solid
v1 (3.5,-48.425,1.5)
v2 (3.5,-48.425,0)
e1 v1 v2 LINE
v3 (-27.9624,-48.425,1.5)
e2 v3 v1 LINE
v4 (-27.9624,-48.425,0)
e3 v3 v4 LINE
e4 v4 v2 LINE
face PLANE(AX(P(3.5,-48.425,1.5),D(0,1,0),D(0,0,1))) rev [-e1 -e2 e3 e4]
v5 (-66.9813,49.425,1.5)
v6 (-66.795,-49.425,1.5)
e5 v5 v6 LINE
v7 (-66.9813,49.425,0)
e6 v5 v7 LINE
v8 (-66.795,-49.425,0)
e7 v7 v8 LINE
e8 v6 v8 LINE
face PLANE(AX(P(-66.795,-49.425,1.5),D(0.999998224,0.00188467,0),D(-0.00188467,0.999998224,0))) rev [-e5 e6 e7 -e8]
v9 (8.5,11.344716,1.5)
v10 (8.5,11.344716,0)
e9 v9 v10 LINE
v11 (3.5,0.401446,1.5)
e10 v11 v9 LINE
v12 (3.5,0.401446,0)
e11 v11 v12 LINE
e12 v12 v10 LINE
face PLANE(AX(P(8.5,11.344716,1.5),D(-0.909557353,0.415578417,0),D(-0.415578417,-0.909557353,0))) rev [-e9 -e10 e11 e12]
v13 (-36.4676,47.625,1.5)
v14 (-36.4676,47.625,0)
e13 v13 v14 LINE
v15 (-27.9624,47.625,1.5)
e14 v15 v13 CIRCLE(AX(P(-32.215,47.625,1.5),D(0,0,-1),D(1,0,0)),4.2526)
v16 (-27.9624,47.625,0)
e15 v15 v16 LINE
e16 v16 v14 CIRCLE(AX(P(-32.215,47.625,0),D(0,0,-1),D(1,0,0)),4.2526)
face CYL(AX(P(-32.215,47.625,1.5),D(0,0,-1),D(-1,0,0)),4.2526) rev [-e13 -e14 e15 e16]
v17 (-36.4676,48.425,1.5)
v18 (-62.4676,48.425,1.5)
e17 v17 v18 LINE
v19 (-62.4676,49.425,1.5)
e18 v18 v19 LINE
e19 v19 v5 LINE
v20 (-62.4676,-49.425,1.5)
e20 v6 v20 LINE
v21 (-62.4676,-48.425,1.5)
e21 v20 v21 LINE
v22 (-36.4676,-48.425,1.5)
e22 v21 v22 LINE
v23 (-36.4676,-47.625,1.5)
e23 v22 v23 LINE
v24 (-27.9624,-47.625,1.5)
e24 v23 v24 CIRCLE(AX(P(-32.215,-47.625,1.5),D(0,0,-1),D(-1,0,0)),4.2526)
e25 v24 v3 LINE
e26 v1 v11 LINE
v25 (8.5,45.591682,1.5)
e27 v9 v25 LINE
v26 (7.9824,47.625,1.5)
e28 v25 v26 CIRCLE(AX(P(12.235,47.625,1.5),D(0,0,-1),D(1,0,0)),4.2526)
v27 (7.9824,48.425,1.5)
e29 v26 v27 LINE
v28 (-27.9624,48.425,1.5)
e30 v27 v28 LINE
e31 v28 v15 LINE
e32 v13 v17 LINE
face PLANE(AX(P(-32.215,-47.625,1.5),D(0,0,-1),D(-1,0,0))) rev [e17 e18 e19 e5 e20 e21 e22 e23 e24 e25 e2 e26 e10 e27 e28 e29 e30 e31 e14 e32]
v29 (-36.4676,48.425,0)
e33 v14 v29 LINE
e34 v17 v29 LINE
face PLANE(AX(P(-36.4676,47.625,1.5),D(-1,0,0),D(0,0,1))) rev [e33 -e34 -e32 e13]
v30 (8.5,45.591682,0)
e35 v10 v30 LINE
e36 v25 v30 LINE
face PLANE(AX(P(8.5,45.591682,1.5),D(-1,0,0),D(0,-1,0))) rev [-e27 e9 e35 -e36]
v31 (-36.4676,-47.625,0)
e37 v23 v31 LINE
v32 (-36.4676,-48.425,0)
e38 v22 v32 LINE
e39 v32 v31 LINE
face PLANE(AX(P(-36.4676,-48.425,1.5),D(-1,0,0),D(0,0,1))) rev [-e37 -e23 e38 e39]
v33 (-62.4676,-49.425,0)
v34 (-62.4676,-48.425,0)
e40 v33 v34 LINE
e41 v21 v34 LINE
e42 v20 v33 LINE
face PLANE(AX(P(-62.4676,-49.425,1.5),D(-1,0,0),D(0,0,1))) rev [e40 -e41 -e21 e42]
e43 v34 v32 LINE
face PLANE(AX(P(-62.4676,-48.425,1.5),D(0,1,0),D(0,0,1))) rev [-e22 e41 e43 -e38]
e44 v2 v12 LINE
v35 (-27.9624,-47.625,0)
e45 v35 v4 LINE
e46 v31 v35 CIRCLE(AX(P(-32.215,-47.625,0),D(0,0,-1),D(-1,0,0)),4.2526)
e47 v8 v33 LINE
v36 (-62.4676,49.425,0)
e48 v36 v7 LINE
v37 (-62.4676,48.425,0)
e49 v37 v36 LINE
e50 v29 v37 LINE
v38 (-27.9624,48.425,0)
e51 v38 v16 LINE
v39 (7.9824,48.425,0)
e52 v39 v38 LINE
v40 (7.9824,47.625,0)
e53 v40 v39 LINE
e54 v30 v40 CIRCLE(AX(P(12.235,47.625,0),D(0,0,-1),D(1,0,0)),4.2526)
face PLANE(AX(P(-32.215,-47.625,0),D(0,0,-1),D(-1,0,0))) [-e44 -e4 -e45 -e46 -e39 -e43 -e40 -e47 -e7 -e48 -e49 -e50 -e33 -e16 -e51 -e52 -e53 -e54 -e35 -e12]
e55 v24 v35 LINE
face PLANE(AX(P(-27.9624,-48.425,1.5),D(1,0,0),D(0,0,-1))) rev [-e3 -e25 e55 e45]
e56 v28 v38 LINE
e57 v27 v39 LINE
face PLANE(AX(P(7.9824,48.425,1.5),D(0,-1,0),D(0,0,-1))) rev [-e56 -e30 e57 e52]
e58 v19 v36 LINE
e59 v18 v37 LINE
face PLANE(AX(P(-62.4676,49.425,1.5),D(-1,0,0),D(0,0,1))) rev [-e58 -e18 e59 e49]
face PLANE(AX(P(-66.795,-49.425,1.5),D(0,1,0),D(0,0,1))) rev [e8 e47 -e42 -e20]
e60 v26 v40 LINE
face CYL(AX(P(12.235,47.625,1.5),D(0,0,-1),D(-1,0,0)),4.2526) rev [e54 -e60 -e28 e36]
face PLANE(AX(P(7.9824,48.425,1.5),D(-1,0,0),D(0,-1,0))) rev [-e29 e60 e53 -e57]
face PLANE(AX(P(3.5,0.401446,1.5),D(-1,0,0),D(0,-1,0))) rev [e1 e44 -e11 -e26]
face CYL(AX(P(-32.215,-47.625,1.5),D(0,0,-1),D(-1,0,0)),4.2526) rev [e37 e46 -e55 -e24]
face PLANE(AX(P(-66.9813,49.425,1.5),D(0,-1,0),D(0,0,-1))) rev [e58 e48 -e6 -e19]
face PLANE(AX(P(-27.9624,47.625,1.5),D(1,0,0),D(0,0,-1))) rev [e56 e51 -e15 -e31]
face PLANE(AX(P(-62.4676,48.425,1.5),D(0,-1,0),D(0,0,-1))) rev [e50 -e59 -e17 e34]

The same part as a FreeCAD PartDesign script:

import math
import FreeCAD as App
import Part
import Sketcher

V = App.Vector
Q = App.Units.Quantity

doc = App.newDocument("Part")
body = doc.addObject("PartDesign::Body", "Body")

# Sketch on XY plane
sketch1 = doc.addObject("Sketcher::SketchObject", "Sketch")
body.addObject(sketch1)
sketch1.AttachmentSupport = (doc.XY_Plane, [""])
sketch1.MapMode = "FlatFace"
sketch1.addGeometry(Part.LineSegment(V(-67, 49.4, 0), V(-66.8, -49.4, 0)), False)
sketch1.addGeometry(Part.LineSegment(V(-66.8, -49.4, 0), V(-62.5, -49.4, 0)), False)
sketch1.addGeometry(Part.LineSegment(V(-62.5, -49.4, 0), V(-62.5, -48.4, 0)), False)
sketch1.addGeometry(Part.LineSegment(V(-62.5, -48.4, 0), V(-36.5, -48.4, 0)), False)
sketch1.addGeometry(Part.LineSegment(V(-36.5, -48.4, 0), V(-36.5, -47.6, 0)), False)
sketch1.addGeometry(Part.ArcOfCircle(Part.Circle(V(-32.2, -47.6, 0), V(0, 0, 1), 4.3), math.radians(0), math.radians(180)), False)
sketch1.addGeometry(Part.LineSegment(V(-28, -47.6, 0), V(-28, -48.4, 0)), False)
sketch1.addGeometry(Part.LineSegment(V(-28, -48.4, 0), V(3.5, -48.4, 0)), False)
sketch1.addGeometry(Part.LineSegment(V(3.5, -48.4, 0), V(3.5, 0.4, 0)), False)
sketch1.addGeometry(Part.LineSegment(V(3.5, 0.4, 0), V(8.5, 11.3, 0)), False)
sketch1.addGeometry(Part.LineSegment(V(8.5, 11.3, 0), V(8.5, 45.6, 0)), False)
sketch1.addGeometry(Part.ArcOfCircle(Part.Circle(V(12.2, 47.6, 0), V(0, 0, 1), 4.3), math.radians(-180), math.radians(-151)), False)
sketch1.addGeometry(Part.LineSegment(V(8, 47.6, 0), V(8, 48.4, 0)), False)
sketch1.addGeometry(Part.LineSegment(V(8, 48.4, 0), V(-28, 48.4, 0)), False)
sketch1.addGeometry(Part.LineSegment(V(-28, 48.4, 0), V(-28, 47.6, 0)), False)
sketch1.addGeometry(Part.ArcOfCircle(Part.Circle(V(-32.2, 47.6, 0), V(0, 0, 1), 4.3), math.radians(180), math.radians(360)), False)
sketch1.addGeometry(Part.LineSegment(V(-36.5, 47.6, 0), V(-36.5, 48.4, 0)), False)
sketch1.addGeometry(Part.LineSegment(V(-36.5, 48.4, 0), V(-62.5, 48.4, 0)), False)
sketch1.addGeometry(Part.LineSegment(V(-62.5, 48.4, 0), V(-62.5, 49.4, 0)), False)
sketch1.addGeometry(Part.LineSegment(V(-62.5, 49.4, 0), V(-67, 49.4, 0)), False)
sketch1.addConstraint(Sketcher.Constraint("Coincident", 0, 2, 1, 1))
sketch1.addConstraint(Sketcher.Constraint("Coincident", 1, 2, 2, 1))
sketch1.addConstraint(Sketcher.Constraint("Coincident", 2, 2, 3, 1))
sketch1.addConstraint(Sketcher.Constraint("Coincident", 3, 2, 4, 1))
sketch1.addConstraint(Sketcher.Constraint("Tangent", 4, 2, 5, 2))
sketch1.addConstraint(Sketcher.Constraint("Tangent", 5, 1, 6, 1))
sketch1.addConstraint(Sketcher.Constraint("Coincident", 6, 2, 7, 1))
sketch1.addConstraint(Sketcher.Constraint("Coincident", 7, 2, 8, 1))
sketch1.addConstraint(Sketcher.Constraint("Coincident", 8, 2, 9, 1))
sketch1.addConstraint(Sketcher.Constraint("Coincident", 9, 2, 10, 1))
sketch1.addConstraint(Sketcher.Constraint("Coincident", 10, 2, 11, 2))
sketch1.addConstraint(Sketcher.Constraint("Tangent", 11, 1, 12, 1))
sketch1.addConstraint(Sketcher.Constraint("Coincident", 12, 2, 13, 1))
sketch1.addConstraint(Sketcher.Constraint("Coincident", 13, 2, 14, 1))
sketch1.addConstraint(Sketcher.Constraint("Tangent", 14, 2, 15, 2))
sketch1.addConstraint(Sketcher.Constraint("Tangent", 15, 1, 16, 1))
sketch1.addConstraint(Sketcher.Constraint("Coincident", 16, 2, 17, 1))
sketch1.addConstraint(Sketcher.Constraint("Coincident", 17, 2, 18, 1))
sketch1.addConstraint(Sketcher.Constraint("Coincident", 18, 2, 19, 1))
sketch1.addConstraint(Sketcher.Constraint("Coincident", 19, 2, 0, 1))
sketch1.addConstraint(Sketcher.Constraint("Horizontal", 1))
sketch1.addConstraint(Sketcher.Constraint("Vertical", 2))
sketch1.addConstraint(Sketcher.Constraint("Horizontal", 3))
sketch1.addConstraint(Sketcher.Constraint("Vertical", 4))
sketch1.addConstraint(Sketcher.Constraint("Vertical", 6))
sketch1.addConstraint(Sketcher.Constraint("Horizontal", 7))
sketch1.addConstraint(Sketcher.Constraint("Vertical", 8))
sketch1.addConstraint(Sketcher.Constraint("Vertical", 10))
sketch1.addConstraint(Sketcher.Constraint("Vertical", 12))
sketch1.addConstraint(Sketcher.Constraint("Horizontal", 13))
sketch1.addConstraint(Sketcher.Constraint("Vertical", 14))
sketch1.addConstraint(Sketcher.Constraint("Vertical", 16))
sketch1.addConstraint(Sketcher.Constraint("Horizontal", 17))
sketch1.addConstraint(Sketcher.Constraint("Vertical", 18))
sketch1.addConstraint(Sketcher.Constraint("Horizontal", 19))
sketch1.addConstraint(Sketcher.Constraint("Equal", 5, 11))
sketch1.addConstraint(Sketcher.Constraint("Equal", 11, 15))
sketch1.addConstraint(Sketcher.Constraint("Symmetric", 5, 3, 15, 3, -1))
sketch1.addConstraint(Sketcher.Constraint("Symmetric", 2, 2, 17, 2, -1))
sketch1.addConstraint(Sketcher.Constraint("Horizontal", 11, 3, 15, 3))
sketch1.addConstraint(Sketcher.Constraint("Horizontal", 3, 2, 6, 2))
sketch1.addConstraint(Sketcher.Constraint("Horizontal", 13, 2, 16, 2))
sketch1.addConstraint(Sketcher.Constraint("Equal", 2, 18))
sketch1.addConstraint(Sketcher.Constraint("DistanceX", 3, 1, 3, 2, Q("26 mm")))
sketch1.addConstraint(Sketcher.Constraint("DistanceY", 2, 1, 2, 2, Q("1 mm")))
sketch1.addConstraint(Sketcher.Constraint("DistanceY", 4, 1, 4, 2, Q("0.8 mm")))
sketch1.addConstraint(Sketcher.Constraint("DistanceX", 8, 2, 9, 2, Q("5 mm")))
sketch1.addConstraint(Sketcher.Constraint("DistanceX", -1, 1, 7, 2, Q("3.5 mm")))
sketch1.addConstraint(Sketcher.Constraint("Radius", 5, Q("4.2526 mm")))
sketch1.addConstraint(Sketcher.Constraint("DistanceX", 5, 3, 11, 3, Q("44.45 mm")))
sketch1.addConstraint(Sketcher.Constraint("DistanceY", 5, 3, 11, 3, Q("95.25 mm")))
sketch1.addConstraint(Sketcher.Constraint("DistanceX", 0, 2, 5, 3, Q("34.58 mm")))
sketch1.addConstraint(Sketcher.Constraint("DistanceX", 7, 1, 7, 2, Q("31.4624 mm")))
sketch1.addConstraint(Sketcher.Constraint("DistanceX", 19, 2, 19, 1, Q("4.5137 mm")))
sketch1.addConstraint(Sketcher.Constraint("DistanceY", 8, 1, 8, 2, Q("48.826446 mm")))
sketch1.addConstraint(Sketcher.Constraint("DistanceY", 10, 1, 10, 2, Q("34.246966 mm")))
pad1 = doc.addObject("PartDesign::Pad", "Pad")
body.addObject(pad1)
pad1.Profile = sketch1
pad1.Length = 1.5

doc.recompute()
